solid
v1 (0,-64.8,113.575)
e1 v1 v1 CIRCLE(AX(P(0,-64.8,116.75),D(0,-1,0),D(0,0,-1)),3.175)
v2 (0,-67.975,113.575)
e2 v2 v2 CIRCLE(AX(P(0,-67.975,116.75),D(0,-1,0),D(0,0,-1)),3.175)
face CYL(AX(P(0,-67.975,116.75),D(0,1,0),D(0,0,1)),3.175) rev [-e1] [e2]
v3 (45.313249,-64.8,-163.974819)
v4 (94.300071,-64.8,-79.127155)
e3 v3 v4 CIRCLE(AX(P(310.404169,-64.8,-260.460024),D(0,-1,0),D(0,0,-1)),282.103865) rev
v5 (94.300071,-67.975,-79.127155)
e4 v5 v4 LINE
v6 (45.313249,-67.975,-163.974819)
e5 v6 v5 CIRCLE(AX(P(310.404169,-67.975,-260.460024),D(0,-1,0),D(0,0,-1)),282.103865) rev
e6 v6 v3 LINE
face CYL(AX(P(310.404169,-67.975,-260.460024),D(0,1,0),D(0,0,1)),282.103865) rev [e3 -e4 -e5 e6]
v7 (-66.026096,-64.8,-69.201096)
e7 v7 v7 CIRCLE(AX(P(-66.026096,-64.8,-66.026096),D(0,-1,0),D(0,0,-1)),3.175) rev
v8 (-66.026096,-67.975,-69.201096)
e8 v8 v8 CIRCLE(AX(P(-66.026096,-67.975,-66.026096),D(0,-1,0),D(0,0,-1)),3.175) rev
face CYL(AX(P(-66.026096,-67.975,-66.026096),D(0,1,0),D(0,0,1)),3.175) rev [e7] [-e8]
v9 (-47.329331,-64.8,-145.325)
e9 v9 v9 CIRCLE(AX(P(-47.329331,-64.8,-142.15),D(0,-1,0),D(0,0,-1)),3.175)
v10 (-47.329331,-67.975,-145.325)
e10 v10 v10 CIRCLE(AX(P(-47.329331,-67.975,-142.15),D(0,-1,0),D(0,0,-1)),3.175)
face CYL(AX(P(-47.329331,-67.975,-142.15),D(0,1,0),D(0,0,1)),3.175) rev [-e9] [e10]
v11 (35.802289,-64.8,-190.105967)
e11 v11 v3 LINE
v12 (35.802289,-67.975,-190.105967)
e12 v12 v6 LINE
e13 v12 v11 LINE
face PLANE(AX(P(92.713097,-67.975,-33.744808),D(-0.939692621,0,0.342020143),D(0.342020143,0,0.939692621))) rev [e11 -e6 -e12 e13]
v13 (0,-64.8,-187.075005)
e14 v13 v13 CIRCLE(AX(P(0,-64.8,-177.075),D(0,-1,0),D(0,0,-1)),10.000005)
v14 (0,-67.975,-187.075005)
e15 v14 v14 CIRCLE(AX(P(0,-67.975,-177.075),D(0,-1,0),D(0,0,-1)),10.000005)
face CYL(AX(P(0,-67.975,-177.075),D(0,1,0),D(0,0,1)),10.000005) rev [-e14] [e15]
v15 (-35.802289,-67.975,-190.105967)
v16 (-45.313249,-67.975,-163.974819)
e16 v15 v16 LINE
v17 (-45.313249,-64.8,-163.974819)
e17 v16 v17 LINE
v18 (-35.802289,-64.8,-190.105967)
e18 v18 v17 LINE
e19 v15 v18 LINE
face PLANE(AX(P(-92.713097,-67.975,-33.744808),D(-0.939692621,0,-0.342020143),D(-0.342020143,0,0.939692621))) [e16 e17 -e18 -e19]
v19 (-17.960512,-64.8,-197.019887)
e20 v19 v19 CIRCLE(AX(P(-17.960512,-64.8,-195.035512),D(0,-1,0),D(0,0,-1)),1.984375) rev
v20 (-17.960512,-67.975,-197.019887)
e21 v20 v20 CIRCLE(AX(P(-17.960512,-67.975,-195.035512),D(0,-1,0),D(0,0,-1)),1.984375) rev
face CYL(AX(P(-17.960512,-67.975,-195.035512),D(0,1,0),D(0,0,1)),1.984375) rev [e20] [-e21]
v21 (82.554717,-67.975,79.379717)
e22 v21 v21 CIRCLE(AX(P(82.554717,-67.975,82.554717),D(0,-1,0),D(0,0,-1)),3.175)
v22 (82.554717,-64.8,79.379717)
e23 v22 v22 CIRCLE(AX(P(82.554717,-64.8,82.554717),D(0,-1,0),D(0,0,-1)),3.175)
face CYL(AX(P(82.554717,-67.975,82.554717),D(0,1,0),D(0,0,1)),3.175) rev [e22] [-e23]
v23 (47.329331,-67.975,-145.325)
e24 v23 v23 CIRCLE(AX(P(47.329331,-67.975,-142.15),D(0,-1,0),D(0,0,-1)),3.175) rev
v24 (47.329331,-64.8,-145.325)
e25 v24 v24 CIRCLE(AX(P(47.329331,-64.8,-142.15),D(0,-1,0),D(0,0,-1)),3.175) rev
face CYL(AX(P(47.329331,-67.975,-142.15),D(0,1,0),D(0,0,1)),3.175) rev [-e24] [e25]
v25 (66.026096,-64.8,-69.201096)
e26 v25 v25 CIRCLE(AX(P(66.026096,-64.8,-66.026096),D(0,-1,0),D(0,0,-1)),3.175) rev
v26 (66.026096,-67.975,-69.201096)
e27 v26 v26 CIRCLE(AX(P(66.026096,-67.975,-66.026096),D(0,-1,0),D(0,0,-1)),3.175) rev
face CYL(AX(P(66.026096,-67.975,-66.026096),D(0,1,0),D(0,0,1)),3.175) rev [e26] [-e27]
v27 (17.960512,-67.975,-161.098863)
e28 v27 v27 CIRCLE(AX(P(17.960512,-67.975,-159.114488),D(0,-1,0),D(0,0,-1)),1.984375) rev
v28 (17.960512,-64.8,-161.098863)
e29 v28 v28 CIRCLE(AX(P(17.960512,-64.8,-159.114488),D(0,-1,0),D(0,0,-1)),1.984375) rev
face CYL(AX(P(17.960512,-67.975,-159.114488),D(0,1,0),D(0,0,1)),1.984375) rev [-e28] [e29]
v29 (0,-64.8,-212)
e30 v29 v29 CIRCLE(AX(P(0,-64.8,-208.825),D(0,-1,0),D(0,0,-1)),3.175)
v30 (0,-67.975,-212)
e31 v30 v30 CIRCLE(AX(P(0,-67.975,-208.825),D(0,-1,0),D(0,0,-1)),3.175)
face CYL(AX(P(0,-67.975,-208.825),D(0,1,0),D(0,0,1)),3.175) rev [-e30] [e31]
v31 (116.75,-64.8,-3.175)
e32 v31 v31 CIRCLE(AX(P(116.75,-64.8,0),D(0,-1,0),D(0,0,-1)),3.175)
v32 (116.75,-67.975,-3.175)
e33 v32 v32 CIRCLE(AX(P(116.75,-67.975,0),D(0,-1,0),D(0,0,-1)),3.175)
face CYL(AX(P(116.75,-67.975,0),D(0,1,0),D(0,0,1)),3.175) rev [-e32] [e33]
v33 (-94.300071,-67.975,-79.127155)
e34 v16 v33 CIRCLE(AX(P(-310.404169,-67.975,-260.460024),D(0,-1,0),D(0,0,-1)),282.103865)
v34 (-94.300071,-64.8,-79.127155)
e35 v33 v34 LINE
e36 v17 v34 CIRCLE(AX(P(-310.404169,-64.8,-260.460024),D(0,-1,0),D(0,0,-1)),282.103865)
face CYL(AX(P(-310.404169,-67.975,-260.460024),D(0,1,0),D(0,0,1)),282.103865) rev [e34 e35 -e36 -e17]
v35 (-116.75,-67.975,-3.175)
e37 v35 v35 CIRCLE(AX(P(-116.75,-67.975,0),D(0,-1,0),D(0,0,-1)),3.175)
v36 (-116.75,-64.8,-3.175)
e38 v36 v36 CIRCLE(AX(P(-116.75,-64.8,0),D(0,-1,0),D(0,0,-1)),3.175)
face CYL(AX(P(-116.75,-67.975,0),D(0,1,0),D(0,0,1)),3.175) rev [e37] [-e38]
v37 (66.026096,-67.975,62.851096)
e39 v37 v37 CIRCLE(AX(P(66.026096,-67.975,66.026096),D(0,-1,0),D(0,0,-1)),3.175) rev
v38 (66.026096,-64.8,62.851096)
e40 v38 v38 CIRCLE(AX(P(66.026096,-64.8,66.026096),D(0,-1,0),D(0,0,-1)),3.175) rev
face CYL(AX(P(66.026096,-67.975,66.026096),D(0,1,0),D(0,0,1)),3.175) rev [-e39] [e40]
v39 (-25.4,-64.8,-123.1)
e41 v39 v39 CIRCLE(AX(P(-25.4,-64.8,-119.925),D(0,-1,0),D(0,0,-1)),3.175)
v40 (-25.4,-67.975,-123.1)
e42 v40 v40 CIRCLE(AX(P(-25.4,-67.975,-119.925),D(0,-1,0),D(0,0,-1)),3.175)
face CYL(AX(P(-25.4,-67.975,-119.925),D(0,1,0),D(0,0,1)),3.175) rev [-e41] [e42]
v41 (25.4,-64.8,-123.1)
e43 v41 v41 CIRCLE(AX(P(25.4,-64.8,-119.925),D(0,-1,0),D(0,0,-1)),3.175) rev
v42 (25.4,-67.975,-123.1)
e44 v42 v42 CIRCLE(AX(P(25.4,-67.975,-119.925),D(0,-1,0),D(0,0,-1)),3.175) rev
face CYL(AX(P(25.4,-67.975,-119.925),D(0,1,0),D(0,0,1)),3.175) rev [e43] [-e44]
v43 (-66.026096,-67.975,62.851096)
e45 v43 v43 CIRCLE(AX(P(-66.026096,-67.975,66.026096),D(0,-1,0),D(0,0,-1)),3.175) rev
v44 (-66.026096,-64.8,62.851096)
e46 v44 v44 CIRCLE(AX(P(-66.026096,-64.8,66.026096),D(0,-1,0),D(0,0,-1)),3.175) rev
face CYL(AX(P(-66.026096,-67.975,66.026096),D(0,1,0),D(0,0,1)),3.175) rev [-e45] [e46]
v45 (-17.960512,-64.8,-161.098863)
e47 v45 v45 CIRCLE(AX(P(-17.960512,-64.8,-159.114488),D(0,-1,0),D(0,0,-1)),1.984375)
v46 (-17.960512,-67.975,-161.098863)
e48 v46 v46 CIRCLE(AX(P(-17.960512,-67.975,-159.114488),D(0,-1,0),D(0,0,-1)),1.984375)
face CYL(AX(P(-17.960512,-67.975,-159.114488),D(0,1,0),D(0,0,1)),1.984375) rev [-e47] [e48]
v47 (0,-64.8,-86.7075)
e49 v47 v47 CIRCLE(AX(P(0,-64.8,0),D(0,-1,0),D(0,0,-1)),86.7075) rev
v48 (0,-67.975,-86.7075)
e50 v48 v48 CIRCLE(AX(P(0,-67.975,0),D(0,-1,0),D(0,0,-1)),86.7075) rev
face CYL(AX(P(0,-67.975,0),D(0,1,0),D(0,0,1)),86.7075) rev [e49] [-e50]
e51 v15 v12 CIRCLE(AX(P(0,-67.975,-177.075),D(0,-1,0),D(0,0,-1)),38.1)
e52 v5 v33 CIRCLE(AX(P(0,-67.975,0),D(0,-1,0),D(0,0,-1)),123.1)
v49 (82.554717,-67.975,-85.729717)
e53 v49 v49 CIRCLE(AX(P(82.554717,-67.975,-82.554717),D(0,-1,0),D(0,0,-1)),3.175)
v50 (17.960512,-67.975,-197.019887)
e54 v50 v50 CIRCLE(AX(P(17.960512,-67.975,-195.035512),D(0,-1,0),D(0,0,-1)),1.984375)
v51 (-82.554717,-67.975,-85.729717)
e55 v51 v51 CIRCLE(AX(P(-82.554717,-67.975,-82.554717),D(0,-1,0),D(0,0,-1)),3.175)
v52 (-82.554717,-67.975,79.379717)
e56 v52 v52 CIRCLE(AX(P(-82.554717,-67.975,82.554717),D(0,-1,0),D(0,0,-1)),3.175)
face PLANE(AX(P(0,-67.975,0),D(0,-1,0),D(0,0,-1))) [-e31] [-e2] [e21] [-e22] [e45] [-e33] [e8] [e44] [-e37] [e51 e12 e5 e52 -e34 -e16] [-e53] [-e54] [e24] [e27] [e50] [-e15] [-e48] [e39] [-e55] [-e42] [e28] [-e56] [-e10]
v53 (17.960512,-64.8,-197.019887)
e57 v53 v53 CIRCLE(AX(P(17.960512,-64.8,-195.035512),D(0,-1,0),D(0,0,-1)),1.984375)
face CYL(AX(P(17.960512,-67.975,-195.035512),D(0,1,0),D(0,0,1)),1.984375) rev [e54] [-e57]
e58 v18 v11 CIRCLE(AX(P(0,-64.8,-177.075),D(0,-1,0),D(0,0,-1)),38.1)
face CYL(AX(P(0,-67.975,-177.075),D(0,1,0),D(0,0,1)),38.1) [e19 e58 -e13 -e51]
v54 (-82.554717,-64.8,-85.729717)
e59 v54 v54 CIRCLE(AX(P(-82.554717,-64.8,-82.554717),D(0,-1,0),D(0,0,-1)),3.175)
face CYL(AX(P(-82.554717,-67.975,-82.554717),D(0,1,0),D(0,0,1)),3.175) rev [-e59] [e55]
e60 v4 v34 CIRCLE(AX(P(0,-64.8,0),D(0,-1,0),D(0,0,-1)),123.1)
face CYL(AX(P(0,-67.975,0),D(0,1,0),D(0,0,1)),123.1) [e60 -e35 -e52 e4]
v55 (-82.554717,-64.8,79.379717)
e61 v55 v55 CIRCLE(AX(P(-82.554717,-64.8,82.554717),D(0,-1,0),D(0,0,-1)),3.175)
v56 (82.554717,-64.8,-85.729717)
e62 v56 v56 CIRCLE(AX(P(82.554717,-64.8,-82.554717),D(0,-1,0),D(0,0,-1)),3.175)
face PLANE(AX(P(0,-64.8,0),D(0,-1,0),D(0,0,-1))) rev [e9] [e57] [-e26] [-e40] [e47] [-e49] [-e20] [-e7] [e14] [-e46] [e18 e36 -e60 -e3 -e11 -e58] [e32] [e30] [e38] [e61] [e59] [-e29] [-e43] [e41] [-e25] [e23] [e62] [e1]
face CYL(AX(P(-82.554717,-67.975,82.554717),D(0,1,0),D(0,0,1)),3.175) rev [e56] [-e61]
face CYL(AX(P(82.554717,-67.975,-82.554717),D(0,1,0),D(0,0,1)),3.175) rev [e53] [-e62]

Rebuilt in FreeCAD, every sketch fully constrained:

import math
import FreeCAD as App
import Part
import Sketcher
from FreeCAD import Vector
Q = App.Units.Quantity

doc = App.newDocument("Part")
body = doc.addObject("PartDesign::Body", "Body")

sketch1 = doc.addObject("Sketcher::SketchObject", "Sketch")
body.addObject(sketch1)
sketch1.AttachmentSupport = (doc.XZ_Plane, [""])
sketch1.MapMode = "FlatFace"
sketch1.AttachmentOffset = App.Placement(Vector(0, 0, 64.8), App.Rotation())
sketch1.addGeometry([
    Part.ArcOfCircle(Part.Circle(Vector(0, -177.1, 0), Vector(0, 0, 1), 38.1), math.radians(-160), math.radians(-20)),
    Part.LineSegment(Vector(35.8, -190.1, 0), Vector(45.3, -164, 0)),
    Part.ArcOfCircle(Part.Circle(Vector(310.4, -260.5, 0), Vector(0, 0, 1), 282.1), math.radians(140), math.radians(160)),
    Part.ArcOfCircle(Part.Circle(Vector(0, 0, 0), Vector(0, 0, 1), 123.1), math.radians(-40), math.radians(220)),
    Part.ArcOfCircle(Part.Circle(Vector(-310.4, -260.5, 0), Vector(0, 0, 1), 282.1), math.radians(20), math.radians(40)),
    Part.LineSegment(Vector(-45.3, -164, 0), Vector(-35.8, -190.1, 0)),
    Part.Circle(Vector(-18, -195, 0), Vector(0, 0, 1), 2),
    Part.Circle(Vector(-47.3, -142.2, 0), Vector(0, 0, 1), 3.2),
    Part.Circle(Vector(-18, -159.1, 0), Vector(0, 0, 1), 2),
    Part.Circle(Vector(-82.6, -82.6, 0), Vector(0, 0, 1), 3.2),
    Part.Circle(Vector(-66, -66, 0), Vector(0, 0, 1), 3.2),
    Part.Circle(Vector(-25.4, -119.9, 0), Vector(0, 0, 1), 3.2),
    Part.Circle(Vector(0, -208.8, 0), Vector(0, 0, 1), 3.2),
    Part.Circle(Vector(18, -195, 0), Vector(0, 0, 1), 2),
    Part.Circle(Vector(0, -177.1, 0), Vector(0, 0, 1), 10),
    Part.Circle(Vector(18, -159.1, 0), Vector(0, 0, 1), 2),
    Part.Circle(Vector(47.3, -142.2, 0), Vector(0, 0, 1), 3.2),
    Part.Circle(Vector(25.4, -119.9, 0), Vector(0, 0, 1), 3.2),
    Part.Circle(Vector(82.6, -82.6, 0), Vector(0, 0, 1), 3.2),
    Part.Circle(Vector(66, -66, 0), Vector(0, 0, 1), 3.2),
    Part.Circle(Vector(-116.8, 0, 0), Vector(0, 0, 1), 3.2),
    Part.Circle(Vector(-66, 66, 0), Vector(0, 0, 1), 3.2),
    Part.Circle(Vector(-82.6, 82.6, 0), Vector(0, 0, 1), 3.2),
    Part.Circle(Vector(0, 0, 0), Vector(0, 0, 1), 86.7),
    Part.Circle(Vector(116.8, 0, 0), Vector(0, 0, 1), 3.2),
    Part.Circle(Vector(0, 116.8, 0), Vector(0, 0, 1), 3.2),
    Part.Circle(Vector(66, 66, 0), Vector(0, 0, 1), 3.2),
    Part.Circle(Vector(82.6, 82.6, 0), Vector(0, 0, 1), 3.2),
], False)
sketch1.addConstraint([
    Sketcher.Constraint("Tangent", 0, 2, 1, 1),
    Sketcher.Constraint("Tangent", 1, 2, 2, 2),
    Sketcher.Constraint("Tangent", 2, 1, 3, 1),
    Sketcher.Constraint("Tangent", 3, 2, 4, 2),
    Sketcher.Constraint("Tangent", 4, 1, 5, 1),
    Sketcher.Constraint("Tangent", 5, 2, 0, 1),
    Sketcher.Constraint("Coincident", 3, 3, -1, 1),
    Sketcher.Constraint("Coincident", 23, 3, -1, 1),
    Sketcher.Constraint("Coincident", 14, 3, 0, 3),
    Sketcher.Constraint("Equal", 2, 4),
    Sketcher.Constraint("Equal", 6, 8),
    Sketcher.Constraint("Equal", 7, 9),
    Sketcher.Constraint("Equal", 9, 10),
    Sketcher.Constraint("Equal", 10, 11),
    Sketcher.Constraint("Equal", 11, 12),
    Sketcher.Constraint("Equal", 8, 13),
    Sketcher.Constraint("Equal", 13, 15),
    Sketcher.Constraint("Equal", 12, 16),
    Sketcher.Constraint("Equal", 16, 17),
    Sketcher.Constraint("Equal", 17, 18),
    Sketcher.Constraint("Equal", 18, 19),
    Sketcher.Constraint("Equal", 19, 20),
    Sketcher.Constraint("Equal", 20, 21),
    Sketcher.Constraint("Equal", 21, 22),
    Sketcher.Constraint("Equal", 22, 24),
    Sketcher.Constraint("Equal", 24, 25),
    Sketcher.Constraint("Equal", 25, 26),
    Sketcher.Constraint("Equal", 26, 27),
    Sketcher.Constraint("Symmetric", 19, 3, 21, 3, -1, 1),
    Sketcher.Constraint("Symmetric", 18, 3, 22, 3, -1, 1),
    Sketcher.Constraint("Symmetric", 20, 3, 24, 3, -1, 1),
    Sketcher.Constraint("Symmetric", 10, 3, 26, 3, -1, 1),
    Sketcher.Constraint("Symmetric", 9, 3, 27, 3, -1, 1),
    Sketcher.Constraint("Symmetric", 6, 3, 13, 3, -2),
    Sketcher.Constraint("Symmetric", 8, 3, 15, 3, -2),
    Sketcher.Constraint("Symmetric", 7, 3, 16, 3, -2),
    Sketcher.Constraint("Symmetric", 11, 3, 17, 3, -2),
    Sketcher.Constraint("Symmetric", 9, 3, 18, 3, -2),
    Sketcher.Constraint("Symmetric", 10, 3, 19, 3, -2),
    Sketcher.Constraint("Symmetric", 1, 2, 4, 1, -2),
    Sketcher.Constraint("PointOnObject", 12, 3, -2),
    Sketcher.Constraint("PointOnObject", 20, 3, -1),
    Sketcher.Constraint("PointOnObject", 25, 3, -2),
    Sketcher.Constraint("Vertical", 6, 3, 8, 3),
    Sketcher.Constraint("Radius", 0, Q("1.5 in")),
    Sketcher.Constraint("Diameter", 7, Q("0.25 in")),
    Sketcher.Constraint("Diameter", 6, Q("0.15625 in")),
    Sketcher.Constraint("DistanceX", 11, 3, -1, 1, Q("1 in")),
    Sketcher.Constraint("Angle", 1, Q("70 deg")),
    Sketcher.Constraint("DistanceY", 12, 3, 11, 3, Q("3.5 in")),
    Sketcher.Constraint("Diameter", 23, Q("173.415 mm")),
    Sketcher.Constraint("Radius", 3, Q("123.1 mm")),
    Sketcher.Constraint("DistanceY", 0, 3, 11, 3, Q("2.25 in")),
    Sketcher.Constraint("Diameter", 14, Q("20.000011 mm")),
    Sketcher.Constraint("DistanceY", 0, 3, 7, 3, Q("1.375 in")),
    Sketcher.Constraint("Radius", 2, Q("282.103865 mm")),
    Sketcher.Constraint("DistanceY", 0, 3, -1, 1, Q("177.075 mm")),
    Sketcher.Constraint("DistanceX", 20, 3, -1, 1, Q("116.75 mm")),
    Sketcher.Constraint("DistanceY", -1, 1, 25, 3, Q("116.75 mm")),
    Sketcher.Constraint("DistanceX", 7, 3, 2, 3, Q("357.7335 mm")),
    Sketcher.Constraint("DistanceY", 4, 3, 6, 3, Q("65.424511 mm")),
    Sketcher.Constraint("DistanceX", 6, 3, 2, 3, Q("328.364681 mm")),
    Sketcher.Constraint("DistanceY", 8, 3, 9, 3, Q("76.559771 mm")),
    Sketcher.Constraint("DistanceX", 9, 3, 10, 3, Q("16.528621 mm")),
    Sketcher.Constraint("DistanceY", 9, 3, 10, 3, Q("16.528621 mm")),
    Sketcher.Constraint("DistanceY", 10, 3, 21, 3, Q("132.052191 mm")),
    Sketcher.Constraint("DistanceX", 21, 3, 19, 3, Q("132.052191 mm")),
])
pad1 = doc.addObject("PartDesign::Pad", "Pad")
body.addObject(pad1)
pad1.Profile = sketch1
pad1.Length = Q("0.125 in")

doc.recompute()
